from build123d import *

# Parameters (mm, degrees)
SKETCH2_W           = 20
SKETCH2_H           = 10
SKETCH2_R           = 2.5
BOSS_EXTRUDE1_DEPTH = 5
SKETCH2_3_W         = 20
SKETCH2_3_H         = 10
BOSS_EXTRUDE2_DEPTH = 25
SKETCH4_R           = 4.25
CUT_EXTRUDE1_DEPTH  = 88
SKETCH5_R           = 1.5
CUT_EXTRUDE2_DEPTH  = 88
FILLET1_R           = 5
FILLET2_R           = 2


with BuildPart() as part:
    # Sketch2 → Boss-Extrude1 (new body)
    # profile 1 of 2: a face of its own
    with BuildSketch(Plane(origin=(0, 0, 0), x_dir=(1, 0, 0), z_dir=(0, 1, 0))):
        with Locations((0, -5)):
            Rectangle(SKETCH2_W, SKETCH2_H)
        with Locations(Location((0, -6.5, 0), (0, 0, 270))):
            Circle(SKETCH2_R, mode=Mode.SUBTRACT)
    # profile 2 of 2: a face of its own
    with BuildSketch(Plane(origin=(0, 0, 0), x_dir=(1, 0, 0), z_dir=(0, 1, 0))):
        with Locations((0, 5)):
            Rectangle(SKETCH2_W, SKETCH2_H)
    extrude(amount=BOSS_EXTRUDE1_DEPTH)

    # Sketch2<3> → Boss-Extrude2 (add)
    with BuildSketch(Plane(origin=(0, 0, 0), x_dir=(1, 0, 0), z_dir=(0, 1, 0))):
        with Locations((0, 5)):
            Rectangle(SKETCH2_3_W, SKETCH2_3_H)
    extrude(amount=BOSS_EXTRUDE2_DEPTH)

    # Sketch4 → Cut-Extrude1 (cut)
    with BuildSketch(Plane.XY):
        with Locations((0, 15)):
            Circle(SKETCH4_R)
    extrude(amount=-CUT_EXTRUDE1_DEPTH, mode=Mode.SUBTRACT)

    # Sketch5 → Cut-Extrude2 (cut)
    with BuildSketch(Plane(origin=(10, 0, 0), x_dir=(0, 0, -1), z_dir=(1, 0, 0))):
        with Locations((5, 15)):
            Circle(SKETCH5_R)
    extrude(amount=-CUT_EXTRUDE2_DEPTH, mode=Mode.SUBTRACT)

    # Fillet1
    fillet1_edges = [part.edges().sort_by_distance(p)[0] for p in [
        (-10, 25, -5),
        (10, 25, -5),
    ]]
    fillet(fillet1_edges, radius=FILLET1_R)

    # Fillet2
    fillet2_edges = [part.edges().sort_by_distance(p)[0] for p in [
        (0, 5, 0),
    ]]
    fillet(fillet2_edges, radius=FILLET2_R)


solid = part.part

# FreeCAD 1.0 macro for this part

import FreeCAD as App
import Part
import Sketcher
from FreeCAD import Vector
Q = App.Units.Quantity


def edges_at(feature, points):
    """Names of the edges that pass closest to the given points."""
    edges = feature.Shape.Edges
    near = lambda p: min(range(len(edges)), key=lambda i: edges[i].distToShape(Part.Vertex(*p))[0])
    return sorted({f"Edge{near(p) + 1}" for p in points})


def add_polygon(sketch, points):
    """Adds a closed chain of lines whose ends are joined by coincident constraints."""
    first, n = sketch.GeometryCount, len(points)
    for a, b in zip(points, points[1:] + points[:1]):
        sketch.addGeometry(Part.LineSegment(App.Vector(*a, 0), App.Vector(*b, 0)), False)
    for i in range(n):
        sketch.addConstraint(Sketcher.Constraint("Coincident", first + i, 2, first + (i + 1) % n, 1))

doc = App.newDocument("Part")
body = doc.addObject("PartDesign::Body", "Body")

sketch1 = body.newObject("Sketcher::SketchObject", "Sketch")
sketch1.AttachmentSupport = (doc.getObject("XZ_Plane"), [""])
sketch1.MapMode = "FlatFace"
add_polygon(sketch1, [(-10, 10), (10, 10), (10, -10), (-10, -10)])
sketch1.addGeometry(Part.Circle(Vector(0, 6.5, 0), Vector(0, 0, 1), 2.5), False)
sketch1.addConstraint(Sketcher.Constraint("Horizontal", 0))
sketch1.addConstraint(Sketcher.Constraint("Vertical", 1))
sketch1.addConstraint(Sketcher.Constraint("Horizontal", 2))
sketch1.addConstraint(Sketcher.Constraint("Vertical", 3))
sketch1.addConstraint(Sketcher.Constraint("Symmetric", 0, 2, 2, 2, -1, 1))
sketch1.addConstraint(Sketcher.Constraint("PointOnObject", 4, 3, -2))
sketch1.addConstraint(Sketcher.Constraint("Equal", 2, 1))
sketch1.addConstraint(Sketcher.Constraint("Diameter", 4, Q("5 mm")))
sketch1.addConstraint(Sketcher.Constraint("DistanceX", 0, 1, 0, 2, Q("20 mm")))
sketch1.addConstraint(Sketcher.Constraint("DistanceY", -1, 1, 4, 3, Q("6.5 mm")))
pad1 = body.newObject("PartDesign::Pad", "Pad")
pad1.Profile = sketch1
pad1.Length = 5
pad1.Reversed = True

sketch2 = body.newObject("Sketcher::SketchObject", "Sketch001")
sketch2.AttachmentSupport = (doc.getObject("XZ_Plane"), [""])
sketch2.MapMode = "FlatFace"
add_polygon(sketch2, [(-10, -10), (-10, 0), (10, 0), (10, -10)])
sketch2.addConstraint(Sketcher.Constraint("Vertical", 0))
sketch2.addConstraint(Sketcher.Constraint("Horizontal", 1))
sketch2.addConstraint(Sketcher.Constraint("Vertical", 2))
sketch2.addConstraint(Sketcher.Constraint("Horizontal", 3))
sketch2.addConstraint(Sketcher.Constraint("Symmetric", 0, 2, 1, 2, -1, 1))
sketch2.addConstraint(Sketcher.Constraint("DistanceX", 1, 1, 1, 2, Q("20 mm")))
sketch2.addConstraint(Sketcher.Constraint("DistanceY", 0, 1, 0, 2, Q("10 mm")))
pad2 = body.newObject("PartDesign::Pad", "Pad001")
pad2.Profile = sketch2
pad2.Length = 25
pad2.Reversed = True

sketch3 = body.newObject("Sketcher::SketchObject", "Sketch002")
sketch3.AttachmentSupport = (doc.getObject("XY_Plane"), [""])
sketch3.MapMode = "FlatFace"
sketch3.addGeometry(Part.Circle(Vector(0, 15, 0), Vector(0, 0, 1), 4.25), False)
sketch3.addConstraint(Sketcher.Constraint("PointOnObject", 0, 3, -2))
sketch3.addConstraint(Sketcher.Constraint("Diameter", 0, Q("8.5 mm")))
sketch3.addConstraint(Sketcher.Constraint("DistanceY", -1, 1, 0, 3, Q("15 mm")))
pocket1 = body.newObject("PartDesign::Pocket", "Pocket")
pocket1.Profile = sketch3
pocket1.Length = 88

sketch4 = body.newObject("Sketcher::SketchObject", "Sketch003")
sketch4.AttachmentSupport = (doc.getObject("YZ_Plane"), [""])
sketch4.MapMode = "FlatFace"
sketch4.AttachmentOffset = App.Placement(Vector(0, 0, 10), App.Rotation())
sketch4.addGeometry(Part.Circle(Vector(15, -5, 0), Vector(0, 0, 1), 1.5), False)
sketch4.addConstraint(Sketcher.Constraint("Diameter", 0, Q("3 mm")))
sketch4.addConstraint(Sketcher.Constraint("DistanceX", -1, 1, 0, 3, Q("15 mm")))
sketch4.addConstraint(Sketcher.Constraint("DistanceY", 0, 3, -1, 1, Q("5 mm")))
pocket2 = body.newObject("PartDesign::Pocket", "Pocket001")
pocket2.Profile = sketch4
pocket2.Length = 88
doc.recompute()

fillet = body.newObject("PartDesign::Fillet", "Fillet")
fillet.Base = (pocket2, edges_at(pocket2, [(-10, 25, -5), (10, 25, -5)]))
fillet.Radius = 5
doc.recompute()

fillet2 = body.newObject("PartDesign::Fillet", "Fillet001")
fillet2.Base = (fillet, edges_at(fillet, [(0, 5, 0)]))
fillet2.Radius = 2

doc.recompute()
